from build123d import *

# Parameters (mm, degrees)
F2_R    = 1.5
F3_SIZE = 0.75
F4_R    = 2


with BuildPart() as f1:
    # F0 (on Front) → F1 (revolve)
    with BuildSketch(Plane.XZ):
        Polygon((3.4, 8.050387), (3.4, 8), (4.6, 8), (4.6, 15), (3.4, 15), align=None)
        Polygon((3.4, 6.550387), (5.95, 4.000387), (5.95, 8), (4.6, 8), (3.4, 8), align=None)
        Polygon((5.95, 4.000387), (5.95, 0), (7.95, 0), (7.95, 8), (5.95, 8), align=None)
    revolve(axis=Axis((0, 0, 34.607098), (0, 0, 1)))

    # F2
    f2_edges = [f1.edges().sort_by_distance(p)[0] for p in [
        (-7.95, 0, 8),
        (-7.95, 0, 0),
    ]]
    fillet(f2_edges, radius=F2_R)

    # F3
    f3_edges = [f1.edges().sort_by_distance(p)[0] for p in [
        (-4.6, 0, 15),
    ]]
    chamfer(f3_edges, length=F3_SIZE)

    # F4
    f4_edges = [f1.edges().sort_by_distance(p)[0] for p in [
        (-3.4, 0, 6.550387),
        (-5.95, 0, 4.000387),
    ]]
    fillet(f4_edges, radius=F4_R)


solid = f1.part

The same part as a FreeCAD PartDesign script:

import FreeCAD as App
import Part
import Sketcher

V = App.Vector
Q = App.Units.Quantity


def edges_at(feature, points):
    """Names of the edges that pass closest to the given points."""
    edges = feature.Shape.Edges
    near = lambda p: min(range(len(edges)), key=lambda i: edges[i].distToShape(Part.Vertex(*p))[0])
    return sorted({f"Edge{near(p) + 1}" for p in points})


def add_polygon(sketch, points):
    """Adds a closed chain of lines whose ends are joined by coincident constraints."""
    first, n = sketch.GeometryCount, len(points)
    for a, b in zip(points, points[1:] + points[:1]):
        sketch.addGeometry(Part.LineSegment(App.Vector(*a, 0), App.Vector(*b, 0)), False)
    for i in range(n):
        sketch.addConstraint(Sketcher.Constraint("Coincident", first + i, 2, first + (i + 1) % n, 1))

doc = App.newDocument("Part")
params = doc.addObject("Spreadsheet::Sheet", "Params")
for row, (alias, value) in enumerate([
    ("sketch1_width", "2 mm"),
    ("sketch1_height", "7 mm"),
    ("sketch1_height2", "8 mm"),
    ("sketch1_width2", "1.2 mm"),
    ("sketch1_width3", "3.35 mm"),
    ("revolution_angle", "360 deg"),
    ("fillet_radius", "1.5 mm"),
    ("chamfer_size", "0.75 mm"),
    ("fillet2_radius", "2 mm"),
], start=1):
    params.set(f"A{row}", alias)
    params.set(f"B{row}", "=" + value)
    params.setAlias(f"B{row}", alias)

body = doc.addObject("PartDesign::Body", "Body")

# Sketch on XZ plane
sketch1 = body.newObject("Sketcher::SketchObject", "Sketch")
sketch1.AttachmentSupport = (doc.getObject("XZ_Plane"), [""])
sketch1.MapMode = "FlatFace"
add_polygon(sketch1, [(4.6, 8), (4.6, 15), (3.4, 15), (3.4, 6.6), (6, 4), (6, 0), (8, 0), (8, 8)])  # lines 0-7
sketch1.addConstraint(Sketcher.Constraint("Vertical", 0))
sketch1.addConstraint(Sketcher.Constraint("Horizontal", 1))
sketch1.addConstraint(Sketcher.Constraint("Vertical", 2))
sketch1.addConstraint(Sketcher.Constraint("Vertical", 4))
sketch1.addConstraint(Sketcher.Constraint("Horizontal", 5))
sketch1.addConstraint(Sketcher.Constraint("Vertical", 6))
sketch1.addConstraint(Sketcher.Constraint("Horizontal", 7))
sketch1.addConstraint(Sketcher.Constraint("PointOnObject", 4, 2, -1))
sketch1.addConstraint(Sketcher.Constraint("DistanceX", 5, 1, 5, 2, 2.0))
sketch1.addConstraint(Sketcher.Constraint("DistanceY", 0, 1, 0, 2, 7.0))
sketch1.addConstraint(Sketcher.Constraint("DistanceY", 6, 1, 6, 2, 8.0))
sketch1.addConstraint(Sketcher.Constraint("Angle", 3, Q("-45 deg")))
sketch1.addConstraint(Sketcher.Constraint("DistanceX", 1, 2, 1, 1, 1.2))
sketch1.addConstraint(Sketcher.Constraint("DistanceX", 7, 2, 7, 1, 3.35))
sketch1.addConstraint(Sketcher.Constraint("DistanceX", -1, 1, 0, 2, 4.6))
sketch1.addConstraint(Sketcher.Constraint("DistanceY", 2, 2, 2, 1, 8.449613))
sketch1.setExpression("Constraints[16]", "Params.sketch1_width")
sketch1.setExpression("Constraints[17]", "Params.sketch1_height")
sketch1.setExpression("Constraints[18]", "Params.sketch1_height2")
sketch1.setExpression("Constraints[20]", "Params.sketch1_width2")
sketch1.setExpression("Constraints[21]", "Params.sketch1_width3")
revolution = body.newObject("PartDesign::Revolution", "Revolution")
revolution.Profile = sketch1
revolution.ReferenceAxis = (sketch1, ["V_Axis"])
revolution.setExpression("Angle", "Params.revolution_angle")
doc.recompute()

fillet = body.newObject("PartDesign::Fillet", "Fillet")
fillet.Base = (revolution, edges_at(revolution, [(-7.95, 0, 8), (-7.95, 0, 0)]))
fillet.setExpression("Radius", "Params.fillet_radius")
doc.recompute()

chamfer = body.newObject("PartDesign::Chamfer", "Chamfer")
chamfer.Base = (fillet, edges_at(fillet, [(-4.6, 0, 15)]))
chamfer.setExpression("Size", "Params.chamfer_size")
doc.recompute()

fillet2 = body.newObject("PartDesign::Fillet", "Fillet001")
fillet2.Base = (chamfer, edges_at(chamfer, [(-3.4, 0, 6.55), (-5.95, 0, 4)]))
fillet2.setExpression("Radius", "Params.fillet2_radius")

doc.recompute()
